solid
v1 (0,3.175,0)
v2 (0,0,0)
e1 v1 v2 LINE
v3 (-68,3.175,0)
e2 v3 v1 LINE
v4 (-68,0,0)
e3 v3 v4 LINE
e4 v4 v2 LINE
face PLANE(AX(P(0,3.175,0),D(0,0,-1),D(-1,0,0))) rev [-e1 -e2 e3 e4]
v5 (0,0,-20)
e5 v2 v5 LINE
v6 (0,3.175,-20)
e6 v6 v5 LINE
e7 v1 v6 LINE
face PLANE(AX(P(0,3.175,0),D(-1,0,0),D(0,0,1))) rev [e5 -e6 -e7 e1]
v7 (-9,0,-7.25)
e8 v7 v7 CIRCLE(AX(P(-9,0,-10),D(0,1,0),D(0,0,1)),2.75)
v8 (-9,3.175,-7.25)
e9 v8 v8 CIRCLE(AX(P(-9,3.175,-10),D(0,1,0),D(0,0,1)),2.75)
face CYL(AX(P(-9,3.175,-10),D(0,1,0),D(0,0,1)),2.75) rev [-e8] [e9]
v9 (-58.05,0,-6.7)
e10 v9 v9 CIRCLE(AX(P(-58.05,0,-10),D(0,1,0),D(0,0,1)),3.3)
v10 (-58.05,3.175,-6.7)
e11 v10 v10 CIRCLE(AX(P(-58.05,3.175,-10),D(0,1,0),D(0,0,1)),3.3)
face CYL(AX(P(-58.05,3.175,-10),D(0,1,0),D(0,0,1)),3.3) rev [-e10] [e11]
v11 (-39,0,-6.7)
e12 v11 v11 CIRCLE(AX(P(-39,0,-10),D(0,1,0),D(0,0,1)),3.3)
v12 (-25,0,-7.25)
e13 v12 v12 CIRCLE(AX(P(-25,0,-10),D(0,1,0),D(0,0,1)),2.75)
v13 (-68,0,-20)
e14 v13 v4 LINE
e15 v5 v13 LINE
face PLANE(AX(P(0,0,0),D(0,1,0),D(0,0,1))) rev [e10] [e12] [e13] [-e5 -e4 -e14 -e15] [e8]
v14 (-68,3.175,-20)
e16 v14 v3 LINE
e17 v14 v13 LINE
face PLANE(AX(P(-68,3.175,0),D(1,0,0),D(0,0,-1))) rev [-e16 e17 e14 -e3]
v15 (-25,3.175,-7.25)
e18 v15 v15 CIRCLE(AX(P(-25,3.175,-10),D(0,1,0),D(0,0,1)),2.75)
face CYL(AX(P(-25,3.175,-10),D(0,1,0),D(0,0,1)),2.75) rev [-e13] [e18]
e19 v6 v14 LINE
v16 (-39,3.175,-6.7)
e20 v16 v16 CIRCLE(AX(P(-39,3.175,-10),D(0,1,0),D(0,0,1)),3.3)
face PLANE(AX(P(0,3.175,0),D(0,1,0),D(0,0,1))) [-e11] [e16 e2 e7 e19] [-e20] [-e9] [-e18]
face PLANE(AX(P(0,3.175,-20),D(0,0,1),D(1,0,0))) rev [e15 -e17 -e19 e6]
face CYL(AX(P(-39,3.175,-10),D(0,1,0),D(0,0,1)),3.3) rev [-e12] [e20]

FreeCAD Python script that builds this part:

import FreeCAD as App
import Part
import Sketcher

V = App.Vector

doc = App.newDocument("Part")
body = doc.addObject("PartDesign::Body", "Body")

sketch1 = doc.addObject("Sketcher::SketchObject", "Sketch")
body.addObject(sketch1)
sketch1.AttachmentSupport = (doc.XZ_Plane, [""])
sketch1.MapMode = "FlatFace"
sketch1.addGeometry(Part.LineSegment(V(-68, -20, 0), V(-68, 0, 0)), False)
sketch1.addGeometry(Part.LineSegment(V(-68, 0, 0), V(0, 0, 0)), False)
sketch1.addGeometry(Part.LineSegment(V(0, 0, 0), V(0, -20, 0)), False)
sketch1.addGeometry(Part.LineSegment(V(0, -20, 0), V(-68, -20, 0)), False)
sketch1.addConstraint(Sketcher.Constraint("Coincident", 0, 2, 1, 1))
sketch1.addConstraint(Sketcher.Constraint("Coincident", 1, 2, 2, 1))
sketch1.addConstraint(Sketcher.Constraint("Coincident", 2, 2, 3, 1))
sketch1.addConstraint(Sketcher.Constraint("Coincident", 3, 2, 0, 1))
sketch1.addConstraint(Sketcher.Constraint("Vertical", 0))
sketch1.addConstraint(Sketcher.Constraint("Horizontal", 1))
sketch1.addConstraint(Sketcher.Constraint("Vertical", 2))
sketch1.addConstraint(Sketcher.Constraint("Horizontal", 3))
sketch1.addConstraint(Sketcher.Constraint("Coincident", 1, 2, -1, 1))
sketch1.addConstraint(Sketcher.Constraint("DistanceX", 1, 1, 1, 2, 68.0))
sketch1.addConstraint(Sketcher.Constraint("DistanceY", 0, 1, 0, 2, 20.0))
pad1 = doc.addObject("PartDesign::Pad", "Pad")
body.addObject(pad1)
pad1.Profile = sketch1
pad1.Length = 3.175
pad1.Reversed = True

sketch2 = doc.addObject("Sketcher::SketchObject", "Sketch001")
body.addObject(sketch2)
sketch2.AttachmentSupport = (doc.XZ_Plane, [""])
sketch2.MapMode = "FlatFace"
sketch2.AttachmentOffset = App.Placement(V(0, 0, -3.175), App.Rotation())
sketch2.addGeometry(Part.Circle(V(-39, -10, 0), V(0, 0, 1), 3.3), False)
sketch2.addGeometry(Part.Circle(V(-58, -10, 0), V(0, 0, 1), 3.3), False)
sketch2.addConstraint(Sketcher.Constraint("Equal", 0, 1))
sketch2.addConstraint(Sketcher.Constraint("Horizontal", 0, 3, 1, 3))
sketch2.addConstraint(Sketcher.Constraint("Diameter", 0, 6.6))
sketch2.addConstraint(Sketcher.Constraint("DistanceX", 0, 3, -1, 1, 39.0))
sketch2.addConstraint(Sketcher.Constraint("DistanceY", 0, 3, -1, 1, 10.0))
sketch2.addConstraint(Sketcher.Constraint("DistanceX", 1, 3, -1, 1, 58.05))
doc.recompute()
hole = doc.addObject("PartDesign::Hole", "Hole")
body.addObject(hole)
hole.Profile = sketch2
hole.ThreadType = "None"
hole.Diameter = 6.6
hole.DepthType = "Dimension"
hole.Depth = 14
hole.DrillPoint = "Angled"
hole.DrillPointAngle = 118
hole.Reversed = True

sketch3 = doc.addObject("Sketcher::SketchObject", "Sketch002")
body.addObject(sketch3)
sketch3.AttachmentSupport = (doc.XZ_Plane, [""])
sketch3.MapMode = "FlatFace"
sketch3.AttachmentOffset = App.Placement(V(0, 0, -3.175), App.Rotation())
sketch3.addGeometry(Part.Circle(V(-25, -10, 0), V(0, 0, 1), 2.8), False)
sketch3.addGeometry(Part.Circle(V(-9, -10, 0), V(0, 0, 1), 2.8), False)
sketch3.addConstraint(Sketcher.Constraint("Equal", 0, 1))
sketch3.addConstraint(Sketcher.Constraint("Horizontal", 0, 3, 1, 3))
sketch3.addConstraint(Sketcher.Constraint("Diameter", 0, 5.5))
sketch3.addConstraint(Sketcher.Constraint("DistanceX", 0, 3, -1, 1, 25.0))
sketch3.addConstraint(Sketcher.Constraint("DistanceY", 0, 3, -1, 1, 10.0))
sketch3.addConstraint(Sketcher.Constraint("DistanceX", 1, 3, -1, 1, 9.0))
doc.recompute()
hole2 = doc.addObject("PartDesign::Hole", "Hole001")
body.addObject(hole2)
hole2.Profile = sketch3
hole2.ThreadType = "None"
hole2.Diameter = 5.5
hole2.DepthType = "Dimension"
hole2.Depth = 14
hole2.DrillPoint = "Angled"
hole2.DrillPointAngle = 118
hole2.Reversed = True

doc.recompute()
